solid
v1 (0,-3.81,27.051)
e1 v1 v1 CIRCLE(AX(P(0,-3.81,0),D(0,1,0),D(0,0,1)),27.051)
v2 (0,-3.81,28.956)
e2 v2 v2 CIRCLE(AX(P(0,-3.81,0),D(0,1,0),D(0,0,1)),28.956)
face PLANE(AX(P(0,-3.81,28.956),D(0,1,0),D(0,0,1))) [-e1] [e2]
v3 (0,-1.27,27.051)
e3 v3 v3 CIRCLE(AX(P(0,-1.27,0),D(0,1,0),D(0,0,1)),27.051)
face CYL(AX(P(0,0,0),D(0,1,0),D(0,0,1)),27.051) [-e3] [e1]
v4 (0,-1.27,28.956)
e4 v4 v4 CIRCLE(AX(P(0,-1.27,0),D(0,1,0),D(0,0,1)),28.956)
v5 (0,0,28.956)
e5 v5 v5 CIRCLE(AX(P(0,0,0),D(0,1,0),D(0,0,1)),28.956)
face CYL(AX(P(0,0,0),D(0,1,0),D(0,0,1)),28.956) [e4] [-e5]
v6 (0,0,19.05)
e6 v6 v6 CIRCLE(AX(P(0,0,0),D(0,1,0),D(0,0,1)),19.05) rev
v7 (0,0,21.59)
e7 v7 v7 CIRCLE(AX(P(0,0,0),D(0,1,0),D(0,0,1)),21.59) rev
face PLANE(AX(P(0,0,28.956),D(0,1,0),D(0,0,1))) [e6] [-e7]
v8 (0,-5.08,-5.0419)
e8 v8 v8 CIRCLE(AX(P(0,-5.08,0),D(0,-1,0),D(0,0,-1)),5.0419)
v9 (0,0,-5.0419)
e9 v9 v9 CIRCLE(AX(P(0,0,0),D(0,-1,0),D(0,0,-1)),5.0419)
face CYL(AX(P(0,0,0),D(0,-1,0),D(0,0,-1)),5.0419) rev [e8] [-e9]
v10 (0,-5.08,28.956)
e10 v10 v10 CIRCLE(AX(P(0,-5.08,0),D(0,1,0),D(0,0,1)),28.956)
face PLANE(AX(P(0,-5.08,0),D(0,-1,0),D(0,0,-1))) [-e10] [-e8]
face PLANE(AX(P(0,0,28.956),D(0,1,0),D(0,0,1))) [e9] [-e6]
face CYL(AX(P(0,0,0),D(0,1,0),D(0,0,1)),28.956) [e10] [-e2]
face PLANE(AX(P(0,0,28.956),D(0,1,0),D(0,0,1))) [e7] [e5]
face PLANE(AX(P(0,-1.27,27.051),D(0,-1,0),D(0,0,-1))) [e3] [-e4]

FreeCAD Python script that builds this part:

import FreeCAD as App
import Part
import Sketcher
from FreeCAD import Vector
Q = App.Units.Quantity

doc = App.newDocument("Part")
params = doc.addObject("Spreadsheet::Sheet", "Params")
for row, (alias, value) in enumerate([
    ("sketch1_width", "0.2 in"),
    ("sketch1_width2", "0.1 in"),
    ("sketch1_height", "1.14 in"),
    ("sketch1_height2", "0.075 in"),
    ("revolution_angle", "360 deg"),
    ("sketch2_diameter", "0.397 in"),
], start=1):
    params.set(f"A{row}", alias)
    params.set(f"B{row}", "=" + value)
    params.setAlias(f"B{row}", alias)

body = doc.addObject("PartDesign::Body", "Body")

sketch1 = body.newObject("Sketcher::SketchObject", "Sketch")
sketch1.AttachmentSupport = (doc.getObject("YZ_Plane"), [""])
sketch1.MapMode = "FlatFace"
sketch1.addGeometry(Part.LineSegment(Vector(-5.08, 0, 0), Vector(0, 0, 0)), False)
sketch1.addGeometry(Part.LineSegment(Vector(0, 0, 0), Vector(0, 28.956, 0)), False)
sketch1.addGeometry(Part.LineSegment(Vector(0, 28.956, 0), Vector(-1.27, 28.956, 0)), False)
sketch1.addGeometry(Part.LineSegment(Vector(-1.27, 28.956, 0), Vector(-1.27, 27.051, 0)), False)
sketch1.addGeometry(Part.LineSegment(Vector(-1.27, 27.051, 0), Vector(-3.81, 27.051, 0)), False)
sketch1.addGeometry(Part.LineSegment(Vector(-3.81, 27.051, 0), Vector(-3.81, 28.956, 0)), False)
sketch1.addGeometry(Part.LineSegment(Vector(-3.81, 28.956, 0), Vector(-5.08, 28.956, 0)), False)
sketch1.addGeometry(Part.LineSegment(Vector(-5.08, 28.956, 0), Vector(-5.08, 0, 0)), False)
sketch1.addConstraint(Sketcher.Constraint("Coincident", 0, 2, 1, 1))
sketch1.addConstraint(Sketcher.Constraint("Coincident", 1, 2, 2, 1))
sketch1.addConstraint(Sketcher.Constraint("Coincident", 2, 2, 3, 1))
sketch1.addConstraint(Sketcher.Constraint("Coincident", 3, 2, 4, 1))
sketch1.addConstraint(Sketcher.Constraint("Coincident", 4, 2, 5, 1))
sketch1.addConstraint(Sketcher.Constraint("Coincident", 5, 2, 6, 1))
sketch1.addConstraint(Sketcher.Constraint("Coincident", 6, 2, 7, 1))
sketch1.addConstraint(Sketcher.Constraint("Coincident", 7, 2, 0, 1))
sketch1.addConstraint(Sketcher.Constraint("Horizontal", 0))
sketch1.addConstraint(Sketcher.Constraint("Vertical", 1))
sketch1.addConstraint(Sketcher.Constraint("Horizontal", 2))
sketch1.addConstraint(Sketcher.Constraint("Vertical", 3))
sketch1.addConstraint(Sketcher.Constraint("Horizontal", 4))
sketch1.addConstraint(Sketcher.Constraint("Vertical", 5))
sketch1.addConstraint(Sketcher.Constraint("Horizontal", 6))
sketch1.addConstraint(Sketcher.Constraint("Vertical", 7))
sketch1.addConstraint(Sketcher.Constraint("Coincident", 0, 2, -1, 1))
sketch1.addConstraint(Sketcher.Constraint("Horizontal", 2, 2, 5, 2))
sketch1.addConstraint(Sketcher.Constraint("Equal", 2, 6))
sketch1.addConstraint(Sketcher.Constraint("DistanceX", 0, 1, 0, 2, Q("0.2 in")))
sketch1.addConstraint(Sketcher.Constraint("DistanceX", 4, 2, 4, 1, Q("0.1 in")))
sketch1.addConstraint(Sketcher.Constraint("DistanceY", 1, 1, 1, 2, Q("1.14 in")))
sketch1.addConstraint(Sketcher.Constraint("DistanceY", 3, 2, 3, 1, Q("0.075 in")))
sketch1.setExpression("Constraints[19]", "Params.sketch1_width")
sketch1.setExpression("Constraints[20]", "Params.sketch1_width2")
sketch1.setExpression("Constraints[21]", "Params.sketch1_height")
sketch1.setExpression("Constraints[22]", "Params.sketch1_height2")
revolution = body.newObject("PartDesign::Revolution", "Revolution")
revolution.Profile = sketch1
revolution.ReferenceAxis = (sketch1, ["H_Axis"])
revolution.setExpression("Angle", "Params.revolution_angle")

sketch2 = body.newObject("Sketcher::SketchObject", "Sketch001")
sketch2.AttachmentSupport = (doc.getObject("XZ_Plane"), [""])
sketch2.MapMode = "FlatFace"
sketch2.AttachmentOffset = App.Placement(Vector(0, 0, 0.2 * 25.4), App.Rotation())
sketch2.addGeometry(Part.Circle(Vector(0, 0, 0), Vector(0, 0, 1), 5.0419), False)
sketch2.addConstraint(Sketcher.Constraint("Coincident", 0, 3, -1, 1))
sketch2.addConstraint(Sketcher.Constraint("Diameter", 0, Q("0.397 in")))
sketch2.setExpression("Constraints[1]", "Params.sketch2_diameter")
pocket1 = body.newObject("PartDesign::Pocket", "Pocket")
pocket1.Profile = sketch2
pocket1.Type = "ThroughAll"

doc.recompute()
